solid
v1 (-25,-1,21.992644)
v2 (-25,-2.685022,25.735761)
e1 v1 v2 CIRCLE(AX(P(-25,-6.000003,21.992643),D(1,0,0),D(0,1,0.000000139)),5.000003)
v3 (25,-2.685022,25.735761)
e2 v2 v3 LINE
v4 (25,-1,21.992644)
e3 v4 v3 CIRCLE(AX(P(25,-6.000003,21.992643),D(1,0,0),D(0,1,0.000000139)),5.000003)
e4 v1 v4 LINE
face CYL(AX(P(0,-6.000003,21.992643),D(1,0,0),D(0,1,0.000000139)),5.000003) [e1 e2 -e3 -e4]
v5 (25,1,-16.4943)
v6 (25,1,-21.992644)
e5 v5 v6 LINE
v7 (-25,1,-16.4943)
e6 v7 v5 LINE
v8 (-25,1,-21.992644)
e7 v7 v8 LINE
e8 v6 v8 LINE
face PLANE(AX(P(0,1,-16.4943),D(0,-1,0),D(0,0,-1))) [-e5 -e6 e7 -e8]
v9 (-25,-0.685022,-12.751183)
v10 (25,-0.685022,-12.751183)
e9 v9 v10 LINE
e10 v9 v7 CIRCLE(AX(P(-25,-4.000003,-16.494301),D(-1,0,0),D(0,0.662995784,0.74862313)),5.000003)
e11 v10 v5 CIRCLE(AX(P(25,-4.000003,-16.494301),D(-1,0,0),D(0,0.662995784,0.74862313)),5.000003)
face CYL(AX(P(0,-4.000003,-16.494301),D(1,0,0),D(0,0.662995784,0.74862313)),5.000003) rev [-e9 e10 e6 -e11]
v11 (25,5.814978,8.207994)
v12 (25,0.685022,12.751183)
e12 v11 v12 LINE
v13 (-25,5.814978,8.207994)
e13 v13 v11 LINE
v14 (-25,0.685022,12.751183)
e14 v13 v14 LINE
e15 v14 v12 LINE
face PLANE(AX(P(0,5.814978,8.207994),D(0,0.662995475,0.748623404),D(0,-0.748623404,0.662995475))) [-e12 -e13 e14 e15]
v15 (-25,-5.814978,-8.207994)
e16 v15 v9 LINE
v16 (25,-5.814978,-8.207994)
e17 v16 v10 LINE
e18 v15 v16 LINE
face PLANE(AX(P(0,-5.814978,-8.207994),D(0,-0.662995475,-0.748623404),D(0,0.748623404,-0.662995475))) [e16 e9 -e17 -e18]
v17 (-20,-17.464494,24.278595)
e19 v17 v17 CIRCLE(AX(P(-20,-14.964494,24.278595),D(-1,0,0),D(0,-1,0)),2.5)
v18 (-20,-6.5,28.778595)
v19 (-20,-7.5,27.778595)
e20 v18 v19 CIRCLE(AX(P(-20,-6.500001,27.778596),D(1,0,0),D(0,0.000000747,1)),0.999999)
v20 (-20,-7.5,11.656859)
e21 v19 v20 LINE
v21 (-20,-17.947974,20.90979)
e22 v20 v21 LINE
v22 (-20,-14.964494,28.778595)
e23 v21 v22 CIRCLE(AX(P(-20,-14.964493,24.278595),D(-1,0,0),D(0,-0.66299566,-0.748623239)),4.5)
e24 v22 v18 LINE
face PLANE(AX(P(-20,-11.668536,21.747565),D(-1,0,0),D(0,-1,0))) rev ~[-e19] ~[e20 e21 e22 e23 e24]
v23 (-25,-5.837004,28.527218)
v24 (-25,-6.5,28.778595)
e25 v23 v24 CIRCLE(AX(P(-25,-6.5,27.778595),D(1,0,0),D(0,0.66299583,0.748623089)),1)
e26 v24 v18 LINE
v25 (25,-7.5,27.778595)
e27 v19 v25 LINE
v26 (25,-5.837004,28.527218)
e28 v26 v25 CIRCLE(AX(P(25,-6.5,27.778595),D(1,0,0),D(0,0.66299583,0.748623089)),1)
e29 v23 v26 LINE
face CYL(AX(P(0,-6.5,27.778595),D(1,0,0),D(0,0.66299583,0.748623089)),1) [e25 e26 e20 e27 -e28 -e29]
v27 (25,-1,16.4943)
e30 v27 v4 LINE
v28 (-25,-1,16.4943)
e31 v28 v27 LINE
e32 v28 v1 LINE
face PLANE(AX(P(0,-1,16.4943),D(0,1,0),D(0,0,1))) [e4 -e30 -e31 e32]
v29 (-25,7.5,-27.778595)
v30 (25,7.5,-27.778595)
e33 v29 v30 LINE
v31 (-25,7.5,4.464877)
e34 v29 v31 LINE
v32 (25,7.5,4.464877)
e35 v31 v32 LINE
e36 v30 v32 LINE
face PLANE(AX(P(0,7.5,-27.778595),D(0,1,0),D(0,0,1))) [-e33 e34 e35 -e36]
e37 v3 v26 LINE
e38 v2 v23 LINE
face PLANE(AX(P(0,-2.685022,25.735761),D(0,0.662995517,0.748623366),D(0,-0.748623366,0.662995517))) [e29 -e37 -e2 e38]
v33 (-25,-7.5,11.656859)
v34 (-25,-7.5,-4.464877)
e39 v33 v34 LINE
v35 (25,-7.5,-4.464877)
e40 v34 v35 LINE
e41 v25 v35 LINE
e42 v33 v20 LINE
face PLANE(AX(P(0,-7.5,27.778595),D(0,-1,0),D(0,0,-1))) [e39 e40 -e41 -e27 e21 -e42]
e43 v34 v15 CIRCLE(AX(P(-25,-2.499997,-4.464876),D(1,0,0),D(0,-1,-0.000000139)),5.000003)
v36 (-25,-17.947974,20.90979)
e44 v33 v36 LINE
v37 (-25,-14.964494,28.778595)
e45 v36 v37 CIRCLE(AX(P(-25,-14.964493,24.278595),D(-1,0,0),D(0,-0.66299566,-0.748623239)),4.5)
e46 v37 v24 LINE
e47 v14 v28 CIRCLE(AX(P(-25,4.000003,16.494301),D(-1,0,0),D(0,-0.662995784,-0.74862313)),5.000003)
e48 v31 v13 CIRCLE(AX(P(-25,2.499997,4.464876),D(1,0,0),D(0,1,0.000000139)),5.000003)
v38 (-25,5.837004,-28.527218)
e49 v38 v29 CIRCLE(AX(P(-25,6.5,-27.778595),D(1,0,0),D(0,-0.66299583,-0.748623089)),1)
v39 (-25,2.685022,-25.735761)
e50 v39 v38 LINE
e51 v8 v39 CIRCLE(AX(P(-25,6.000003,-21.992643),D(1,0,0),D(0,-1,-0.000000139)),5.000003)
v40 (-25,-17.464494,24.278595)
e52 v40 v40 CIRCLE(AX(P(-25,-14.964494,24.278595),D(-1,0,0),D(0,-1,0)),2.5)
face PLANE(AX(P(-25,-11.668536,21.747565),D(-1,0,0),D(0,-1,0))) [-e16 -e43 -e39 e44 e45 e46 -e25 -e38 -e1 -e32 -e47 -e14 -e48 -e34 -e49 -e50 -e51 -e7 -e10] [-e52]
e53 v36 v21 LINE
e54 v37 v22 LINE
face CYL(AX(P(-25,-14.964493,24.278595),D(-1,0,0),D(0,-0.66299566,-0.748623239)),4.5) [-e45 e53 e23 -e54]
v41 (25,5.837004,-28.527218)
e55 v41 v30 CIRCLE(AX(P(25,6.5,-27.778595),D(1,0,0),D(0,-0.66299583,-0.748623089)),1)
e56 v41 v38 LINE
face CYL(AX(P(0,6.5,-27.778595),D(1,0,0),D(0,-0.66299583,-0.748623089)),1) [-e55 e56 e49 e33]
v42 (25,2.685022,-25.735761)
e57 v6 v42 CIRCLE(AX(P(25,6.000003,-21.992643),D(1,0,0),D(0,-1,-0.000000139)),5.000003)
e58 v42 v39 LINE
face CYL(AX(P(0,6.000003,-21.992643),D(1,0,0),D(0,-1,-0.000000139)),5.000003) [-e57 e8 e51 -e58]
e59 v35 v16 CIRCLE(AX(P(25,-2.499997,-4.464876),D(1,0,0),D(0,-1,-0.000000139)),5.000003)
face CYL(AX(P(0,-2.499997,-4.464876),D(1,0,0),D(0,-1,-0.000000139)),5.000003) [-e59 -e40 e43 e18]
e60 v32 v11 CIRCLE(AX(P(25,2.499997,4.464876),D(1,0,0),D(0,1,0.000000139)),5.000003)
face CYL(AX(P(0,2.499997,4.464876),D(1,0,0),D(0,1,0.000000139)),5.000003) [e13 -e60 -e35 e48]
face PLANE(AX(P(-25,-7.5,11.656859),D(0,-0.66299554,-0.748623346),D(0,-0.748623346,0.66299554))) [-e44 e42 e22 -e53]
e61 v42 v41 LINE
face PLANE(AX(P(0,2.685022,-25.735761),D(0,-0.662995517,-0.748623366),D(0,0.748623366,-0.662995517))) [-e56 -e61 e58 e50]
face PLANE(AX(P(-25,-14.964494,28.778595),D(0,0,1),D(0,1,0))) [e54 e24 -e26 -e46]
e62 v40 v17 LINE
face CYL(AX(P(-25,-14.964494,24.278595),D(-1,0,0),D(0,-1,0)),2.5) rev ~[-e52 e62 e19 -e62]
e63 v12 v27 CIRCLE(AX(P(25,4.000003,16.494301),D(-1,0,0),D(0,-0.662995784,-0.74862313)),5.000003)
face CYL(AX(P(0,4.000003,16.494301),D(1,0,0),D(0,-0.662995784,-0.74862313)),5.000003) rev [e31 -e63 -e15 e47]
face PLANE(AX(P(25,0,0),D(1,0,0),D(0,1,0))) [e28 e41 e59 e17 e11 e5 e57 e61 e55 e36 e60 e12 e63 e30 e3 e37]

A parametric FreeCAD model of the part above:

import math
import FreeCAD as App
import Part
import Sketcher
from FreeCAD import Vector

doc = App.newDocument("Part")
body = doc.addObject("PartDesign::Body", "Body")

# Sketch on YZ plane
sketch1 = body.newObject("Sketcher::SketchObject", "Sketch")
sketch1.AttachmentSupport = (doc.getObject("YZ_Plane"), [""])
sketch1.MapMode = "FlatFace"
sketch1.addGeometry([
    Part.ArcOfCircle(Part.Circle(Vector(6.5, -27.8, 0), Vector(0, 0, 1), 1), math.radians(-132), math.radians(0)),  # 0
    Part.LineSegment(Vector(7.5, -27.8, 0), Vector(7.5, 4.5, 0)),  # 1
    Part.ArcOfCircle(Part.Circle(Vector(2.5, 4.5, 0), Vector(0, 0, 1), 5), math.radians(0), math.radians(48)),  # 2
    Part.LineSegment(Vector(5.8, 8.2, 0), Vector(0.7, 12.8, 0)),  # 3
    Part.ArcOfCircle(Part.Circle(Vector(4, 16.5, 0), Vector(0, 0, 1), 5), math.radians(-180), math.radians(-132)),  # 4
    Part.LineSegment(Vector(-1, 16.5, 0), Vector(-1, 22, 0)),  # 5
    Part.ArcOfCircle(Part.Circle(Vector(-6, 22, 0), Vector(0, 0, 1), 5), math.radians(0), math.radians(48)),  # 6
    Part.LineSegment(Vector(-2.7, 25.7, 0), Vector(-5.8, 28.5, 0)),  # 7
    Part.ArcOfCircle(Part.Circle(Vector(-6.5, 27.8, 0), Vector(0, 0, 1), 1), math.radians(48), math.radians(180)),  # 8
    Part.LineSegment(Vector(-7.5, 27.8, 0), Vector(-7.5, -4.5, 0)),  # 9
    Part.ArcOfCircle(Part.Circle(Vector(-2.5, -4.5, 0), Vector(0, 0, 1), 5), math.radians(-180), math.radians(-132)),  # 10
    Part.LineSegment(Vector(-5.8, -8.2, 0), Vector(-0.7, -12.8, 0)),  # 11
    Part.ArcOfCircle(Part.Circle(Vector(-4, -16.5, 0), Vector(0, 0, 1), 5), math.radians(0), math.radians(48)),  # 12
    Part.LineSegment(Vector(1, -16.5, 0), Vector(1, -22, 0)),  # 13
    Part.ArcOfCircle(Part.Circle(Vector(6, -22, 0), Vector(0, 0, 1), 5), math.radians(-180), math.radians(-132)),  # 14
    Part.LineSegment(Vector(2.7, -25.7, 0), Vector(5.8, -28.5, 0)),  # 15
], False)
sketch1.addConstraint([
    Sketcher.Constraint("Tangent", 0, 2, 1, 1),
    Sketcher.Constraint("Tangent", 1, 2, 2, 1),
    Sketcher.Constraint("Tangent", 2, 2, 3, 1),
    Sketcher.Constraint("Tangent", 3, 2, 4, 2),
    Sketcher.Constraint("Tangent", 4, 1, 5, 1),
    Sketcher.Constraint("Tangent", 5, 2, 6, 1),
    Sketcher.Constraint("Tangent", 6, 2, 7, 1),
    Sketcher.Constraint("Tangent", 7, 2, 8, 1),
    Sketcher.Constraint("Tangent", 8, 2, 9, 1),
    Sketcher.Constraint("Tangent", 9, 2, 10, 1),
    Sketcher.Constraint("Tangent", 10, 2, 11, 1),
    Sketcher.Constraint("Tangent", 11, 2, 12, 2),
    Sketcher.Constraint("Tangent", 12, 1, 13, 1),
    Sketcher.Constraint("Tangent", 13, 2, 14, 1),
    Sketcher.Constraint("Tangent", 14, 2, 15, 1),
    Sketcher.Constraint("Tangent", 15, 2, 0, 1),
    Sketcher.Constraint("Vertical", 1),
    Sketcher.Constraint("Vertical", 5),
    Sketcher.Constraint("Vertical", 9),
    Sketcher.Constraint("Vertical", 13),
    Sketcher.Constraint("Equal", 2, 4),
    Sketcher.Constraint("Equal", 4, 6),
    Sketcher.Constraint("Equal", 0, 8),
    Sketcher.Constraint("Equal", 6, 10),
    Sketcher.Constraint("Equal", 10, 12),
    Sketcher.Constraint("Equal", 12, 14),
    Sketcher.Constraint("Symmetric", 0, 3, 8, 3, -1, 1),
    Sketcher.Constraint("Symmetric", 4, 3, 12, 3, -1, 1),
    Sketcher.Constraint("Parallel", 3, 7),
    Sketcher.Constraint("Parallel", 7, 11),
    Sketcher.Constraint("Parallel", 11, 15),
    Sketcher.Constraint("Radius", 0, 1.0),
    Sketcher.Constraint("DistanceX", 4, 1, -1, 1, 1.0),
    Sketcher.Constraint("DistanceX", 8, 3, 0, 3, 13.0),
    Sketcher.Constraint("Radius", 2, 5.000003),
    Sketcher.Constraint("DistanceX", 6, 3, 7, 2, 0.162999),
    Sketcher.Constraint("DistanceY", 1, 1, 1, 2, 32.243472),
    Sketcher.Constraint("DistanceY", -1, 1, 4, 3, 16.494301),
])
pad1 = body.newObject("PartDesign::Pad", "Pad")
pad1.Profile = sketch1
pad1.Length = 50
pad1.Midplane = True

# Sketch on YZ plane
sketch2 = body.newObject("Sketcher::SketchObject", "Sketch001")
sketch2.AttachmentSupport = (doc.getObject("YZ_Plane"), [""])
sketch2.MapMode = "FlatFace"
sketch2.AttachmentOffset = App.Placement(Vector(0, 0, -25), App.Rotation())
sketch2.addGeometry([
    Part.LineSegment(Vector(-7.5, 11.7, 0), Vector(-17.9, 20.9, 0)),  # 0
    Part.ArcOfCircle(Part.Circle(Vector(-15, 24.3, 0), Vector(0, 0, 1), 4.5), math.radians(90), math.radians(228)),  # 1
    Part.LineSegment(Vector(-15, 28.8, 0), Vector(-6.5, 28.8, 0)),  # 2
    Part.ArcOfCircle(Part.Circle(Vector(-6.5, 27.8, 0), Vector(0, 0, 1), 1), math.radians(90), math.radians(180)),  # 3
    Part.LineSegment(Vector(-7.5, 27.8, 0), Vector(-7.5, 11.7, 0)),  # 4
    Part.Circle(Vector(-15, 24.3, 0), Vector(0, 0, 1), 2.5),  # 5
], False)
sketch2.addConstraint([
    Sketcher.Constraint("Tangent", 0, 2, 1, 2),
    Sketcher.Constraint("Tangent", 1, 1, 2, 1),
    Sketcher.Constraint("Tangent", 2, 2, 3, 1),
    Sketcher.Constraint("Tangent", 3, 2, 4, 1),
    Sketcher.Constraint("Coincident", 4, 2, 0, 1),
    Sketcher.Constraint("Horizontal", 2),
    Sketcher.Constraint("Vertical", 4),
    Sketcher.Constraint("Coincident", 5, 3, 1, 3),
    Sketcher.Constraint("Diameter", 5, 5.0),
    Sketcher.Constraint("Radius", 3, 0.999999),
    Sketcher.Constraint("Radius", 1, 4.5),
    Sketcher.Constraint("DistanceX", 3, 3, -1, 1, 6.500001),
    Sketcher.Constraint("Distance", 0, 13.956249),
    Sketcher.Constraint("DistanceX", 2, 1, 2, 2, 8.464494),
    Sketcher.Constraint("DistanceY", -1, 1, 0, 2, 20.90979),
])
pad2 = body.newObject("PartDesign::Pad", "Pad001")
pad2.Profile = sketch2
pad2.Length = 5

doc.recompute()
